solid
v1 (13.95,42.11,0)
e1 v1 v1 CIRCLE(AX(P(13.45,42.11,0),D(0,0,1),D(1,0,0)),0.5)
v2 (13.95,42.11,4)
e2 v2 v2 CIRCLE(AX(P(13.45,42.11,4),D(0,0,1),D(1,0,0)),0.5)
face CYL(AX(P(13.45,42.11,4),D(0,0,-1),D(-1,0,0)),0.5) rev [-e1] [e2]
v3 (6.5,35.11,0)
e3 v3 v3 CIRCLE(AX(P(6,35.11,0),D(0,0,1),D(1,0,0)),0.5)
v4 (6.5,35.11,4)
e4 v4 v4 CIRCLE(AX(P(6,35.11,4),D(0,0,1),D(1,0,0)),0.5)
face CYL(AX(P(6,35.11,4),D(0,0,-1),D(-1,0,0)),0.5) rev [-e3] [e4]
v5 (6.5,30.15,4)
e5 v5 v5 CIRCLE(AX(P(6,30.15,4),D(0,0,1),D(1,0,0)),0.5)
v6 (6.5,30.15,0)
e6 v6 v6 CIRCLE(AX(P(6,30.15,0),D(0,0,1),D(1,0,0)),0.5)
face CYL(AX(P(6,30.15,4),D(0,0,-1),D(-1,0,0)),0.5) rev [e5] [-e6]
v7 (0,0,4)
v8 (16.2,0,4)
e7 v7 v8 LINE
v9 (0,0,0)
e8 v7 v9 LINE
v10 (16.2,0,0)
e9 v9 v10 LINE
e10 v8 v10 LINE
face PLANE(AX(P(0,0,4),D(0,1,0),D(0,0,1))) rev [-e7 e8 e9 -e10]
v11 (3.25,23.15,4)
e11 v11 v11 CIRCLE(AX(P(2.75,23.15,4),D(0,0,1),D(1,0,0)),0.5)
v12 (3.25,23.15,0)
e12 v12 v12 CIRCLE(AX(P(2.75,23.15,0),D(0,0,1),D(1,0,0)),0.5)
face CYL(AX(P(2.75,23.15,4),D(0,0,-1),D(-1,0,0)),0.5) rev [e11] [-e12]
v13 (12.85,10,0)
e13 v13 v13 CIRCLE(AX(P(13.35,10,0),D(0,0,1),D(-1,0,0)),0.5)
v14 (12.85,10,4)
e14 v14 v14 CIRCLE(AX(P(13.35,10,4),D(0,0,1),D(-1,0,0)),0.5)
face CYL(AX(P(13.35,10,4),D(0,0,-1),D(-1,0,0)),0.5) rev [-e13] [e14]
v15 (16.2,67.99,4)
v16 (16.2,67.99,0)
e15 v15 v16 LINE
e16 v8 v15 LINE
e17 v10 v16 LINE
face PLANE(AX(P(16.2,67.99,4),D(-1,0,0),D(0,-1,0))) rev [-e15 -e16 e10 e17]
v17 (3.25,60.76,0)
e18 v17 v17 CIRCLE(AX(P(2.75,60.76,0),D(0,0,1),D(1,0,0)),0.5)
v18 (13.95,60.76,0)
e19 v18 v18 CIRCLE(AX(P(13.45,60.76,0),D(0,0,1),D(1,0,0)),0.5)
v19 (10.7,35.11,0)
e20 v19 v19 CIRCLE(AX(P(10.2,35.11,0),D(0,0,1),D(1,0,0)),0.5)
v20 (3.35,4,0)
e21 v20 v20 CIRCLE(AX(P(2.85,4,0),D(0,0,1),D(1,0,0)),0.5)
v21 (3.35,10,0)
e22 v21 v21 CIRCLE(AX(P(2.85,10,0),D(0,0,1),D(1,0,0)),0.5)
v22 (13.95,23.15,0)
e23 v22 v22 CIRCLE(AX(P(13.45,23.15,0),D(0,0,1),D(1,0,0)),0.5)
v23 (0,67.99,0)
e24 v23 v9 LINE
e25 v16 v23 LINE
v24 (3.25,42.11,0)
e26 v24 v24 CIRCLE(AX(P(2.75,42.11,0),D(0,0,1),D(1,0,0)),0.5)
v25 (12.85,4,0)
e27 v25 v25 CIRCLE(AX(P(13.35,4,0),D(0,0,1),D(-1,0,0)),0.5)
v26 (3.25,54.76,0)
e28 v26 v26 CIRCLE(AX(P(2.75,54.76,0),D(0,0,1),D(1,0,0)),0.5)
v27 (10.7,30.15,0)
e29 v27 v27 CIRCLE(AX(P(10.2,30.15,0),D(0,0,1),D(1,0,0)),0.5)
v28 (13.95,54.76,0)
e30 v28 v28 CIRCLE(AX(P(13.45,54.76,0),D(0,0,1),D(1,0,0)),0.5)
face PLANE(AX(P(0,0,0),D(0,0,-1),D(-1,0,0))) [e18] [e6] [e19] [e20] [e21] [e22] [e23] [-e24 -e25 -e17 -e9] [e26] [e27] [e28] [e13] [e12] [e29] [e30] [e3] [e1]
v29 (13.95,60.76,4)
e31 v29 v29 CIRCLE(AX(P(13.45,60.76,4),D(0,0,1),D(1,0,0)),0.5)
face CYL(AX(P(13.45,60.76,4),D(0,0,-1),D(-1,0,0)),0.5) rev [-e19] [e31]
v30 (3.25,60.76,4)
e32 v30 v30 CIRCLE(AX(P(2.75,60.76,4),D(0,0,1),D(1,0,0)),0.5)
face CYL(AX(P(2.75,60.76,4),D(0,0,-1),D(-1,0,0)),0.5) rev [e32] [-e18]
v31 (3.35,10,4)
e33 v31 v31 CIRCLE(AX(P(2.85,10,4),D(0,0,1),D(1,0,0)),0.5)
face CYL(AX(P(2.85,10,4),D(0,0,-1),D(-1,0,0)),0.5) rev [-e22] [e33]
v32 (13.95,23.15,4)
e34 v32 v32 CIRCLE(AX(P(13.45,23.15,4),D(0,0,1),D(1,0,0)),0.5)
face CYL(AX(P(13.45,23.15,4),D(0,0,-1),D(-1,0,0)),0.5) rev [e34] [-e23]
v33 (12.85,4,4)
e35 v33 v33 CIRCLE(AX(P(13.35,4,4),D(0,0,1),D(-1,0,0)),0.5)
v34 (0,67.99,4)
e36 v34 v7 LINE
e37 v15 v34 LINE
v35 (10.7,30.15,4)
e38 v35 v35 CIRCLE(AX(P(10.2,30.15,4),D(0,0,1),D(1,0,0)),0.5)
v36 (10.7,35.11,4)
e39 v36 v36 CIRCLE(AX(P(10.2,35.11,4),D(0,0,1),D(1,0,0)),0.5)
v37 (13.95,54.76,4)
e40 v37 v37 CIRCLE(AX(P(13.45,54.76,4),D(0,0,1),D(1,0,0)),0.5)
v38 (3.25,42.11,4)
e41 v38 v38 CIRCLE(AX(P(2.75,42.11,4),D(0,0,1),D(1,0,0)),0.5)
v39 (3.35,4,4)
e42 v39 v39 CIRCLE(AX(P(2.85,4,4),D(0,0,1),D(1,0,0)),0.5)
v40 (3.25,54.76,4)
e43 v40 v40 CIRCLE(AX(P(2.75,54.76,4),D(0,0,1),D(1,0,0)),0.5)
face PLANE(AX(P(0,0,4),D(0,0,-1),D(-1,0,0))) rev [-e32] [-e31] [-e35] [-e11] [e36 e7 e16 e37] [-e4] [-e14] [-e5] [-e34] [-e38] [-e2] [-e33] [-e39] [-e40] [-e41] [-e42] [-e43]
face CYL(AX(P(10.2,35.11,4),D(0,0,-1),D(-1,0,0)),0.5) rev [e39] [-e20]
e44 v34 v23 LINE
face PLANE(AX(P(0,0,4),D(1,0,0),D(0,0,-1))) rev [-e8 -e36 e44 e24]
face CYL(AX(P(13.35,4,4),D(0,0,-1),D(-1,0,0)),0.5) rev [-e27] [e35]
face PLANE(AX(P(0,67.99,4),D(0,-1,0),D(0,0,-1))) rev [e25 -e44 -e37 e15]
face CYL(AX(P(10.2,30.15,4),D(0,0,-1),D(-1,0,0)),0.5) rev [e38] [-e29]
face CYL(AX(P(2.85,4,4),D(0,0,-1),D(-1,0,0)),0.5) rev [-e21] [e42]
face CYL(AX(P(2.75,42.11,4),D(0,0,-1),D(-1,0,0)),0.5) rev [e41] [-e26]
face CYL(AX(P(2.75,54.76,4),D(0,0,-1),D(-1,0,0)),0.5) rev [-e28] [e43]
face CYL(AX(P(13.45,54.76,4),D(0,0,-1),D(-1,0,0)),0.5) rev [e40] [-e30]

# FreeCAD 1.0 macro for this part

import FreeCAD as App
import Part
import Sketcher
Q = App.Units.Quantity


def add_polygon(sketch, points):
    """Adds a closed chain of lines whose ends are joined by coincident constraints."""
    first, n = sketch.GeometryCount, len(points)
    for a, b in zip(points, points[1:] + points[:1]):
        sketch.addGeometry(Part.LineSegment(App.Vector(*a, 0), App.Vector(*b, 0)), False)
    for i in range(n):
        sketch.addConstraint(Sketcher.Constraint("Coincident", first + i, 2, first + (i + 1) % n, 1))

doc = App.newDocument("Part")
params = doc.addObject("Spreadsheet::Sheet", "Params")
for row, (alias, value) in enumerate([
    ("sketch1_diameter", "1 mm"),
    ("sketch1_width", "16.2 mm"),
    ("sketch1_height", "67.99 mm"),
    ("pad1_length", "4 mm"),
], start=1):
    params.set(f"A{row}", alias)
    params.set(f"B{row}", "=" + value)
    params.setAlias(f"B{row}", alias)

body = doc.addObject("PartDesign::Body", "Body")

# Sketch on XY plane
sketch1 = body.newObject("Sketcher::SketchObject", "Sketch")
sketch1.AttachmentSupport = (doc.getObject("XY_Plane"), [""])
sketch1.MapMode = "FlatFace"
add_polygon(sketch1, [(0, 68), (0, 0), (16.2, 0), (16.2, 68)])  # lines 0-3
sketch1.addGeometry(Part.Circle(App.Vector(2.9, 4, 0), App.Vector(0, 0, 1), 0.5), False)  # 4
sketch1.addGeometry(Part.Circle(App.Vector(2.9, 10, 0), App.Vector(0, 0, 1), 0.5), False)  # 5
sketch1.addGeometry(Part.Circle(App.Vector(2.8, 23.1, 0), App.Vector(0, 0, 1), 0.5), False)  # 6
sketch1.addGeometry(Part.Circle(App.Vector(6, 30.1, 0), App.Vector(0, 0, 1), 0.5), False)  # 7
sketch1.addGeometry(Part.Circle(App.Vector(13.3, 4, 0), App.Vector(0, 0, 1), 0.5), False)  # 8
sketch1.addGeometry(Part.Circle(App.Vector(13.3, 10, 0), App.Vector(0, 0, 1), 0.5), False)  # 9
sketch1.addGeometry(Part.Circle(App.Vector(10.2, 30.1, 0), App.Vector(0, 0, 1), 0.5), False)  # 10
sketch1.addGeometry(Part.Circle(App.Vector(13.4, 23.1, 0), App.Vector(0, 0, 1), 0.5), False)  # 11
sketch1.addGeometry(Part.Circle(App.Vector(2.8, 42.1, 0), App.Vector(0, 0, 1), 0.5), False)  # 12
sketch1.addGeometry(Part.Circle(App.Vector(6, 35.1, 0), App.Vector(0, 0, 1), 0.5), False)  # 13
sketch1.addGeometry(Part.Circle(App.Vector(2.8, 54.8, 0), App.Vector(0, 0, 1), 0.5), False)  # 14
sketch1.addGeometry(Part.Circle(App.Vector(2.8, 60.8, 0), App.Vector(0, 0, 1), 0.5), False)  # 15
sketch1.addGeometry(Part.Circle(App.Vector(10.2, 35.1, 0), App.Vector(0, 0, 1), 0.5), False)  # 16
sketch1.addGeometry(Part.Circle(App.Vector(13.4, 42.1, 0), App.Vector(0, 0, 1), 0.5), False)  # 17
sketch1.addGeometry(Part.Circle(App.Vector(13.4, 54.8, 0), App.Vector(0, 0, 1), 0.5), False)  # 18
sketch1.addGeometry(Part.Circle(App.Vector(13.4, 60.8, 0), App.Vector(0, 0, 1), 0.5), False)  # 19
sketch1.addConstraint(Sketcher.Constraint("Vertical", 0))
sketch1.addConstraint(Sketcher.Constraint("Horizontal", 1))
sketch1.addConstraint(Sketcher.Constraint("Vertical", 2))
sketch1.addConstraint(Sketcher.Constraint("Horizontal", 3))
sketch1.addConstraint(Sketcher.Constraint("Coincident", 0, 2, -1, 1))
sketch1.addConstraint(Sketcher.Constraint("Equal", 4, 5))
sketch1.addConstraint(Sketcher.Constraint("Equal", 5, 6))
sketch1.addConstraint(Sketcher.Constraint("Equal", 6, 7))
sketch1.addConstraint(Sketcher.Constraint("Equal", 7, 8))
sketch1.addConstraint(Sketcher.Constraint("Equal", 8, 9))
sketch1.addConstraint(Sketcher.Constraint("Equal", 9, 10))
sketch1.addConstraint(Sketcher.Constraint("Equal", 10, 11))
sketch1.addConstraint(Sketcher.Constraint("Equal", 11, 12))
sketch1.addConstraint(Sketcher.Constraint("Equal", 12, 13))
sketch1.addConstraint(Sketcher.Constraint("Equal", 13, 14))
sketch1.addConstraint(Sketcher.Constraint("Equal", 14, 15))
sketch1.addConstraint(Sketcher.Constraint("Equal", 15, 16))
sketch1.addConstraint(Sketcher.Constraint("Equal", 16, 17))
sketch1.addConstraint(Sketcher.Constraint("Equal", 17, 18))
sketch1.addConstraint(Sketcher.Constraint("Equal", 18, 19))
sketch1.addConstraint(Sketcher.Constraint("Horizontal", 4, 3, 8, 3))
sketch1.addConstraint(Sketcher.Constraint("Horizontal", 5, 3, 9, 3))
sketch1.addConstraint(Sketcher.Constraint("Horizontal", 7, 3, 10, 3))
sketch1.addConstraint(Sketcher.Constraint("Horizontal", 6, 3, 11, 3))
sketch1.addConstraint(Sketcher.Constraint("Horizontal", 13, 3, 16, 3))
sketch1.addConstraint(Sketcher.Constraint("Horizontal", 12, 3, 17, 3))
sketch1.addConstraint(Sketcher.Constraint("Horizontal", 14, 3, 18, 3))
sketch1.addConstraint(Sketcher.Constraint("Horizontal", 15, 3, 19, 3))
sketch1.addConstraint(Sketcher.Constraint("Vertical", 4, 3, 5, 3))
sketch1.addConstraint(Sketcher.Constraint("Vertical", 8, 3, 9, 3))
sketch1.addConstraint(Sketcher.Constraint("Vertical", 6, 3, 12, 3))
sketch1.addConstraint(Sketcher.Constraint("Vertical", 7, 3, 13, 3))
sketch1.addConstraint(Sketcher.Constraint("Vertical", 12, 3, 14, 3))
sketch1.addConstraint(Sketcher.Constraint("Vertical", 14, 3, 15, 3))
sketch1.addConstraint(Sketcher.Constraint("Vertical", 10, 3, 16, 3))
sketch1.addConstraint(Sketcher.Constraint("Vertical", 11, 3, 17, 3))
sketch1.addConstraint(Sketcher.Constraint("Vertical", 17, 3, 18, 3))
sketch1.addConstraint(Sketcher.Constraint("Vertical", 18, 3, 19, 3))
sketch1.addConstraint(Sketcher.Constraint("Diameter", 4, Q("1 mm")))
sketch1.addConstraint(Sketcher.Constraint("DistanceX", 1, 1, 1, 2, Q("16.2 mm")))
sketch1.addConstraint(Sketcher.Constraint("DistanceY", -1, 1, 4, 3, Q("4 mm")))
sketch1.addConstraint(Sketcher.Constraint("DistanceY", -1, 1, 5, 3, Q("10 mm")))
sketch1.addConstraint(Sketcher.Constraint("DistanceX", -1, 1, 7, 3, Q("6 mm")))
sketch1.addConstraint(Sketcher.Constraint("DistanceY", 6, 3, 7, 3, Q("7 mm")))
sketch1.addConstraint(Sketcher.Constraint("DistanceY", 13, 3, 12, 3, Q("7 mm")))
sketch1.addConstraint(Sketcher.Constraint("DistanceY", 14, 3, 15, 3, Q("6 mm")))
sketch1.addConstraint(Sketcher.Constraint("DistanceY", 0, 2, 0, 1, Q("67.99 mm")))
sketch1.addConstraint(Sketcher.Constraint("DistanceX", -1, 1, 10, 3, Q("10.2 mm")))
sketch1.addConstraint(Sketcher.Constraint("DistanceX", 6, 3, 5, 3, Q("0.1 mm")))
sketch1.addConstraint(Sketcher.Constraint("DistanceX", 4, 3, 8, 3, Q("10.5 mm")))
sketch1.addConstraint(Sketcher.Constraint("DistanceX", 6, 3, 11, 3, Q("10.7 mm")))
sketch1.addConstraint(Sketcher.Constraint("DistanceX", -1, 1, 4, 3, Q("2.85 mm")))
sketch1.addConstraint(Sketcher.Constraint("DistanceY", -1, 1, 6, 3, Q("23.15 mm")))
sketch1.addConstraint(Sketcher.Constraint("DistanceY", -1, 1, 12, 3, Q("42.11 mm")))
sketch1.addConstraint(Sketcher.Constraint("DistanceY", -1, 1, 14, 3, Q("54.76 mm")))
sketch1.setExpression("Constraints[42]", "Params.sketch1_diameter")
sketch1.setExpression("Constraints[43]", "Params.sketch1_width")
sketch1.setExpression("Constraints[50]", "Params.sketch1_height")
pad1 = body.newObject("PartDesign::Pad", "Pad")
pad1.Profile = sketch1
pad1.setExpression("Length", "Params.pad1_length")

doc.recompute()
